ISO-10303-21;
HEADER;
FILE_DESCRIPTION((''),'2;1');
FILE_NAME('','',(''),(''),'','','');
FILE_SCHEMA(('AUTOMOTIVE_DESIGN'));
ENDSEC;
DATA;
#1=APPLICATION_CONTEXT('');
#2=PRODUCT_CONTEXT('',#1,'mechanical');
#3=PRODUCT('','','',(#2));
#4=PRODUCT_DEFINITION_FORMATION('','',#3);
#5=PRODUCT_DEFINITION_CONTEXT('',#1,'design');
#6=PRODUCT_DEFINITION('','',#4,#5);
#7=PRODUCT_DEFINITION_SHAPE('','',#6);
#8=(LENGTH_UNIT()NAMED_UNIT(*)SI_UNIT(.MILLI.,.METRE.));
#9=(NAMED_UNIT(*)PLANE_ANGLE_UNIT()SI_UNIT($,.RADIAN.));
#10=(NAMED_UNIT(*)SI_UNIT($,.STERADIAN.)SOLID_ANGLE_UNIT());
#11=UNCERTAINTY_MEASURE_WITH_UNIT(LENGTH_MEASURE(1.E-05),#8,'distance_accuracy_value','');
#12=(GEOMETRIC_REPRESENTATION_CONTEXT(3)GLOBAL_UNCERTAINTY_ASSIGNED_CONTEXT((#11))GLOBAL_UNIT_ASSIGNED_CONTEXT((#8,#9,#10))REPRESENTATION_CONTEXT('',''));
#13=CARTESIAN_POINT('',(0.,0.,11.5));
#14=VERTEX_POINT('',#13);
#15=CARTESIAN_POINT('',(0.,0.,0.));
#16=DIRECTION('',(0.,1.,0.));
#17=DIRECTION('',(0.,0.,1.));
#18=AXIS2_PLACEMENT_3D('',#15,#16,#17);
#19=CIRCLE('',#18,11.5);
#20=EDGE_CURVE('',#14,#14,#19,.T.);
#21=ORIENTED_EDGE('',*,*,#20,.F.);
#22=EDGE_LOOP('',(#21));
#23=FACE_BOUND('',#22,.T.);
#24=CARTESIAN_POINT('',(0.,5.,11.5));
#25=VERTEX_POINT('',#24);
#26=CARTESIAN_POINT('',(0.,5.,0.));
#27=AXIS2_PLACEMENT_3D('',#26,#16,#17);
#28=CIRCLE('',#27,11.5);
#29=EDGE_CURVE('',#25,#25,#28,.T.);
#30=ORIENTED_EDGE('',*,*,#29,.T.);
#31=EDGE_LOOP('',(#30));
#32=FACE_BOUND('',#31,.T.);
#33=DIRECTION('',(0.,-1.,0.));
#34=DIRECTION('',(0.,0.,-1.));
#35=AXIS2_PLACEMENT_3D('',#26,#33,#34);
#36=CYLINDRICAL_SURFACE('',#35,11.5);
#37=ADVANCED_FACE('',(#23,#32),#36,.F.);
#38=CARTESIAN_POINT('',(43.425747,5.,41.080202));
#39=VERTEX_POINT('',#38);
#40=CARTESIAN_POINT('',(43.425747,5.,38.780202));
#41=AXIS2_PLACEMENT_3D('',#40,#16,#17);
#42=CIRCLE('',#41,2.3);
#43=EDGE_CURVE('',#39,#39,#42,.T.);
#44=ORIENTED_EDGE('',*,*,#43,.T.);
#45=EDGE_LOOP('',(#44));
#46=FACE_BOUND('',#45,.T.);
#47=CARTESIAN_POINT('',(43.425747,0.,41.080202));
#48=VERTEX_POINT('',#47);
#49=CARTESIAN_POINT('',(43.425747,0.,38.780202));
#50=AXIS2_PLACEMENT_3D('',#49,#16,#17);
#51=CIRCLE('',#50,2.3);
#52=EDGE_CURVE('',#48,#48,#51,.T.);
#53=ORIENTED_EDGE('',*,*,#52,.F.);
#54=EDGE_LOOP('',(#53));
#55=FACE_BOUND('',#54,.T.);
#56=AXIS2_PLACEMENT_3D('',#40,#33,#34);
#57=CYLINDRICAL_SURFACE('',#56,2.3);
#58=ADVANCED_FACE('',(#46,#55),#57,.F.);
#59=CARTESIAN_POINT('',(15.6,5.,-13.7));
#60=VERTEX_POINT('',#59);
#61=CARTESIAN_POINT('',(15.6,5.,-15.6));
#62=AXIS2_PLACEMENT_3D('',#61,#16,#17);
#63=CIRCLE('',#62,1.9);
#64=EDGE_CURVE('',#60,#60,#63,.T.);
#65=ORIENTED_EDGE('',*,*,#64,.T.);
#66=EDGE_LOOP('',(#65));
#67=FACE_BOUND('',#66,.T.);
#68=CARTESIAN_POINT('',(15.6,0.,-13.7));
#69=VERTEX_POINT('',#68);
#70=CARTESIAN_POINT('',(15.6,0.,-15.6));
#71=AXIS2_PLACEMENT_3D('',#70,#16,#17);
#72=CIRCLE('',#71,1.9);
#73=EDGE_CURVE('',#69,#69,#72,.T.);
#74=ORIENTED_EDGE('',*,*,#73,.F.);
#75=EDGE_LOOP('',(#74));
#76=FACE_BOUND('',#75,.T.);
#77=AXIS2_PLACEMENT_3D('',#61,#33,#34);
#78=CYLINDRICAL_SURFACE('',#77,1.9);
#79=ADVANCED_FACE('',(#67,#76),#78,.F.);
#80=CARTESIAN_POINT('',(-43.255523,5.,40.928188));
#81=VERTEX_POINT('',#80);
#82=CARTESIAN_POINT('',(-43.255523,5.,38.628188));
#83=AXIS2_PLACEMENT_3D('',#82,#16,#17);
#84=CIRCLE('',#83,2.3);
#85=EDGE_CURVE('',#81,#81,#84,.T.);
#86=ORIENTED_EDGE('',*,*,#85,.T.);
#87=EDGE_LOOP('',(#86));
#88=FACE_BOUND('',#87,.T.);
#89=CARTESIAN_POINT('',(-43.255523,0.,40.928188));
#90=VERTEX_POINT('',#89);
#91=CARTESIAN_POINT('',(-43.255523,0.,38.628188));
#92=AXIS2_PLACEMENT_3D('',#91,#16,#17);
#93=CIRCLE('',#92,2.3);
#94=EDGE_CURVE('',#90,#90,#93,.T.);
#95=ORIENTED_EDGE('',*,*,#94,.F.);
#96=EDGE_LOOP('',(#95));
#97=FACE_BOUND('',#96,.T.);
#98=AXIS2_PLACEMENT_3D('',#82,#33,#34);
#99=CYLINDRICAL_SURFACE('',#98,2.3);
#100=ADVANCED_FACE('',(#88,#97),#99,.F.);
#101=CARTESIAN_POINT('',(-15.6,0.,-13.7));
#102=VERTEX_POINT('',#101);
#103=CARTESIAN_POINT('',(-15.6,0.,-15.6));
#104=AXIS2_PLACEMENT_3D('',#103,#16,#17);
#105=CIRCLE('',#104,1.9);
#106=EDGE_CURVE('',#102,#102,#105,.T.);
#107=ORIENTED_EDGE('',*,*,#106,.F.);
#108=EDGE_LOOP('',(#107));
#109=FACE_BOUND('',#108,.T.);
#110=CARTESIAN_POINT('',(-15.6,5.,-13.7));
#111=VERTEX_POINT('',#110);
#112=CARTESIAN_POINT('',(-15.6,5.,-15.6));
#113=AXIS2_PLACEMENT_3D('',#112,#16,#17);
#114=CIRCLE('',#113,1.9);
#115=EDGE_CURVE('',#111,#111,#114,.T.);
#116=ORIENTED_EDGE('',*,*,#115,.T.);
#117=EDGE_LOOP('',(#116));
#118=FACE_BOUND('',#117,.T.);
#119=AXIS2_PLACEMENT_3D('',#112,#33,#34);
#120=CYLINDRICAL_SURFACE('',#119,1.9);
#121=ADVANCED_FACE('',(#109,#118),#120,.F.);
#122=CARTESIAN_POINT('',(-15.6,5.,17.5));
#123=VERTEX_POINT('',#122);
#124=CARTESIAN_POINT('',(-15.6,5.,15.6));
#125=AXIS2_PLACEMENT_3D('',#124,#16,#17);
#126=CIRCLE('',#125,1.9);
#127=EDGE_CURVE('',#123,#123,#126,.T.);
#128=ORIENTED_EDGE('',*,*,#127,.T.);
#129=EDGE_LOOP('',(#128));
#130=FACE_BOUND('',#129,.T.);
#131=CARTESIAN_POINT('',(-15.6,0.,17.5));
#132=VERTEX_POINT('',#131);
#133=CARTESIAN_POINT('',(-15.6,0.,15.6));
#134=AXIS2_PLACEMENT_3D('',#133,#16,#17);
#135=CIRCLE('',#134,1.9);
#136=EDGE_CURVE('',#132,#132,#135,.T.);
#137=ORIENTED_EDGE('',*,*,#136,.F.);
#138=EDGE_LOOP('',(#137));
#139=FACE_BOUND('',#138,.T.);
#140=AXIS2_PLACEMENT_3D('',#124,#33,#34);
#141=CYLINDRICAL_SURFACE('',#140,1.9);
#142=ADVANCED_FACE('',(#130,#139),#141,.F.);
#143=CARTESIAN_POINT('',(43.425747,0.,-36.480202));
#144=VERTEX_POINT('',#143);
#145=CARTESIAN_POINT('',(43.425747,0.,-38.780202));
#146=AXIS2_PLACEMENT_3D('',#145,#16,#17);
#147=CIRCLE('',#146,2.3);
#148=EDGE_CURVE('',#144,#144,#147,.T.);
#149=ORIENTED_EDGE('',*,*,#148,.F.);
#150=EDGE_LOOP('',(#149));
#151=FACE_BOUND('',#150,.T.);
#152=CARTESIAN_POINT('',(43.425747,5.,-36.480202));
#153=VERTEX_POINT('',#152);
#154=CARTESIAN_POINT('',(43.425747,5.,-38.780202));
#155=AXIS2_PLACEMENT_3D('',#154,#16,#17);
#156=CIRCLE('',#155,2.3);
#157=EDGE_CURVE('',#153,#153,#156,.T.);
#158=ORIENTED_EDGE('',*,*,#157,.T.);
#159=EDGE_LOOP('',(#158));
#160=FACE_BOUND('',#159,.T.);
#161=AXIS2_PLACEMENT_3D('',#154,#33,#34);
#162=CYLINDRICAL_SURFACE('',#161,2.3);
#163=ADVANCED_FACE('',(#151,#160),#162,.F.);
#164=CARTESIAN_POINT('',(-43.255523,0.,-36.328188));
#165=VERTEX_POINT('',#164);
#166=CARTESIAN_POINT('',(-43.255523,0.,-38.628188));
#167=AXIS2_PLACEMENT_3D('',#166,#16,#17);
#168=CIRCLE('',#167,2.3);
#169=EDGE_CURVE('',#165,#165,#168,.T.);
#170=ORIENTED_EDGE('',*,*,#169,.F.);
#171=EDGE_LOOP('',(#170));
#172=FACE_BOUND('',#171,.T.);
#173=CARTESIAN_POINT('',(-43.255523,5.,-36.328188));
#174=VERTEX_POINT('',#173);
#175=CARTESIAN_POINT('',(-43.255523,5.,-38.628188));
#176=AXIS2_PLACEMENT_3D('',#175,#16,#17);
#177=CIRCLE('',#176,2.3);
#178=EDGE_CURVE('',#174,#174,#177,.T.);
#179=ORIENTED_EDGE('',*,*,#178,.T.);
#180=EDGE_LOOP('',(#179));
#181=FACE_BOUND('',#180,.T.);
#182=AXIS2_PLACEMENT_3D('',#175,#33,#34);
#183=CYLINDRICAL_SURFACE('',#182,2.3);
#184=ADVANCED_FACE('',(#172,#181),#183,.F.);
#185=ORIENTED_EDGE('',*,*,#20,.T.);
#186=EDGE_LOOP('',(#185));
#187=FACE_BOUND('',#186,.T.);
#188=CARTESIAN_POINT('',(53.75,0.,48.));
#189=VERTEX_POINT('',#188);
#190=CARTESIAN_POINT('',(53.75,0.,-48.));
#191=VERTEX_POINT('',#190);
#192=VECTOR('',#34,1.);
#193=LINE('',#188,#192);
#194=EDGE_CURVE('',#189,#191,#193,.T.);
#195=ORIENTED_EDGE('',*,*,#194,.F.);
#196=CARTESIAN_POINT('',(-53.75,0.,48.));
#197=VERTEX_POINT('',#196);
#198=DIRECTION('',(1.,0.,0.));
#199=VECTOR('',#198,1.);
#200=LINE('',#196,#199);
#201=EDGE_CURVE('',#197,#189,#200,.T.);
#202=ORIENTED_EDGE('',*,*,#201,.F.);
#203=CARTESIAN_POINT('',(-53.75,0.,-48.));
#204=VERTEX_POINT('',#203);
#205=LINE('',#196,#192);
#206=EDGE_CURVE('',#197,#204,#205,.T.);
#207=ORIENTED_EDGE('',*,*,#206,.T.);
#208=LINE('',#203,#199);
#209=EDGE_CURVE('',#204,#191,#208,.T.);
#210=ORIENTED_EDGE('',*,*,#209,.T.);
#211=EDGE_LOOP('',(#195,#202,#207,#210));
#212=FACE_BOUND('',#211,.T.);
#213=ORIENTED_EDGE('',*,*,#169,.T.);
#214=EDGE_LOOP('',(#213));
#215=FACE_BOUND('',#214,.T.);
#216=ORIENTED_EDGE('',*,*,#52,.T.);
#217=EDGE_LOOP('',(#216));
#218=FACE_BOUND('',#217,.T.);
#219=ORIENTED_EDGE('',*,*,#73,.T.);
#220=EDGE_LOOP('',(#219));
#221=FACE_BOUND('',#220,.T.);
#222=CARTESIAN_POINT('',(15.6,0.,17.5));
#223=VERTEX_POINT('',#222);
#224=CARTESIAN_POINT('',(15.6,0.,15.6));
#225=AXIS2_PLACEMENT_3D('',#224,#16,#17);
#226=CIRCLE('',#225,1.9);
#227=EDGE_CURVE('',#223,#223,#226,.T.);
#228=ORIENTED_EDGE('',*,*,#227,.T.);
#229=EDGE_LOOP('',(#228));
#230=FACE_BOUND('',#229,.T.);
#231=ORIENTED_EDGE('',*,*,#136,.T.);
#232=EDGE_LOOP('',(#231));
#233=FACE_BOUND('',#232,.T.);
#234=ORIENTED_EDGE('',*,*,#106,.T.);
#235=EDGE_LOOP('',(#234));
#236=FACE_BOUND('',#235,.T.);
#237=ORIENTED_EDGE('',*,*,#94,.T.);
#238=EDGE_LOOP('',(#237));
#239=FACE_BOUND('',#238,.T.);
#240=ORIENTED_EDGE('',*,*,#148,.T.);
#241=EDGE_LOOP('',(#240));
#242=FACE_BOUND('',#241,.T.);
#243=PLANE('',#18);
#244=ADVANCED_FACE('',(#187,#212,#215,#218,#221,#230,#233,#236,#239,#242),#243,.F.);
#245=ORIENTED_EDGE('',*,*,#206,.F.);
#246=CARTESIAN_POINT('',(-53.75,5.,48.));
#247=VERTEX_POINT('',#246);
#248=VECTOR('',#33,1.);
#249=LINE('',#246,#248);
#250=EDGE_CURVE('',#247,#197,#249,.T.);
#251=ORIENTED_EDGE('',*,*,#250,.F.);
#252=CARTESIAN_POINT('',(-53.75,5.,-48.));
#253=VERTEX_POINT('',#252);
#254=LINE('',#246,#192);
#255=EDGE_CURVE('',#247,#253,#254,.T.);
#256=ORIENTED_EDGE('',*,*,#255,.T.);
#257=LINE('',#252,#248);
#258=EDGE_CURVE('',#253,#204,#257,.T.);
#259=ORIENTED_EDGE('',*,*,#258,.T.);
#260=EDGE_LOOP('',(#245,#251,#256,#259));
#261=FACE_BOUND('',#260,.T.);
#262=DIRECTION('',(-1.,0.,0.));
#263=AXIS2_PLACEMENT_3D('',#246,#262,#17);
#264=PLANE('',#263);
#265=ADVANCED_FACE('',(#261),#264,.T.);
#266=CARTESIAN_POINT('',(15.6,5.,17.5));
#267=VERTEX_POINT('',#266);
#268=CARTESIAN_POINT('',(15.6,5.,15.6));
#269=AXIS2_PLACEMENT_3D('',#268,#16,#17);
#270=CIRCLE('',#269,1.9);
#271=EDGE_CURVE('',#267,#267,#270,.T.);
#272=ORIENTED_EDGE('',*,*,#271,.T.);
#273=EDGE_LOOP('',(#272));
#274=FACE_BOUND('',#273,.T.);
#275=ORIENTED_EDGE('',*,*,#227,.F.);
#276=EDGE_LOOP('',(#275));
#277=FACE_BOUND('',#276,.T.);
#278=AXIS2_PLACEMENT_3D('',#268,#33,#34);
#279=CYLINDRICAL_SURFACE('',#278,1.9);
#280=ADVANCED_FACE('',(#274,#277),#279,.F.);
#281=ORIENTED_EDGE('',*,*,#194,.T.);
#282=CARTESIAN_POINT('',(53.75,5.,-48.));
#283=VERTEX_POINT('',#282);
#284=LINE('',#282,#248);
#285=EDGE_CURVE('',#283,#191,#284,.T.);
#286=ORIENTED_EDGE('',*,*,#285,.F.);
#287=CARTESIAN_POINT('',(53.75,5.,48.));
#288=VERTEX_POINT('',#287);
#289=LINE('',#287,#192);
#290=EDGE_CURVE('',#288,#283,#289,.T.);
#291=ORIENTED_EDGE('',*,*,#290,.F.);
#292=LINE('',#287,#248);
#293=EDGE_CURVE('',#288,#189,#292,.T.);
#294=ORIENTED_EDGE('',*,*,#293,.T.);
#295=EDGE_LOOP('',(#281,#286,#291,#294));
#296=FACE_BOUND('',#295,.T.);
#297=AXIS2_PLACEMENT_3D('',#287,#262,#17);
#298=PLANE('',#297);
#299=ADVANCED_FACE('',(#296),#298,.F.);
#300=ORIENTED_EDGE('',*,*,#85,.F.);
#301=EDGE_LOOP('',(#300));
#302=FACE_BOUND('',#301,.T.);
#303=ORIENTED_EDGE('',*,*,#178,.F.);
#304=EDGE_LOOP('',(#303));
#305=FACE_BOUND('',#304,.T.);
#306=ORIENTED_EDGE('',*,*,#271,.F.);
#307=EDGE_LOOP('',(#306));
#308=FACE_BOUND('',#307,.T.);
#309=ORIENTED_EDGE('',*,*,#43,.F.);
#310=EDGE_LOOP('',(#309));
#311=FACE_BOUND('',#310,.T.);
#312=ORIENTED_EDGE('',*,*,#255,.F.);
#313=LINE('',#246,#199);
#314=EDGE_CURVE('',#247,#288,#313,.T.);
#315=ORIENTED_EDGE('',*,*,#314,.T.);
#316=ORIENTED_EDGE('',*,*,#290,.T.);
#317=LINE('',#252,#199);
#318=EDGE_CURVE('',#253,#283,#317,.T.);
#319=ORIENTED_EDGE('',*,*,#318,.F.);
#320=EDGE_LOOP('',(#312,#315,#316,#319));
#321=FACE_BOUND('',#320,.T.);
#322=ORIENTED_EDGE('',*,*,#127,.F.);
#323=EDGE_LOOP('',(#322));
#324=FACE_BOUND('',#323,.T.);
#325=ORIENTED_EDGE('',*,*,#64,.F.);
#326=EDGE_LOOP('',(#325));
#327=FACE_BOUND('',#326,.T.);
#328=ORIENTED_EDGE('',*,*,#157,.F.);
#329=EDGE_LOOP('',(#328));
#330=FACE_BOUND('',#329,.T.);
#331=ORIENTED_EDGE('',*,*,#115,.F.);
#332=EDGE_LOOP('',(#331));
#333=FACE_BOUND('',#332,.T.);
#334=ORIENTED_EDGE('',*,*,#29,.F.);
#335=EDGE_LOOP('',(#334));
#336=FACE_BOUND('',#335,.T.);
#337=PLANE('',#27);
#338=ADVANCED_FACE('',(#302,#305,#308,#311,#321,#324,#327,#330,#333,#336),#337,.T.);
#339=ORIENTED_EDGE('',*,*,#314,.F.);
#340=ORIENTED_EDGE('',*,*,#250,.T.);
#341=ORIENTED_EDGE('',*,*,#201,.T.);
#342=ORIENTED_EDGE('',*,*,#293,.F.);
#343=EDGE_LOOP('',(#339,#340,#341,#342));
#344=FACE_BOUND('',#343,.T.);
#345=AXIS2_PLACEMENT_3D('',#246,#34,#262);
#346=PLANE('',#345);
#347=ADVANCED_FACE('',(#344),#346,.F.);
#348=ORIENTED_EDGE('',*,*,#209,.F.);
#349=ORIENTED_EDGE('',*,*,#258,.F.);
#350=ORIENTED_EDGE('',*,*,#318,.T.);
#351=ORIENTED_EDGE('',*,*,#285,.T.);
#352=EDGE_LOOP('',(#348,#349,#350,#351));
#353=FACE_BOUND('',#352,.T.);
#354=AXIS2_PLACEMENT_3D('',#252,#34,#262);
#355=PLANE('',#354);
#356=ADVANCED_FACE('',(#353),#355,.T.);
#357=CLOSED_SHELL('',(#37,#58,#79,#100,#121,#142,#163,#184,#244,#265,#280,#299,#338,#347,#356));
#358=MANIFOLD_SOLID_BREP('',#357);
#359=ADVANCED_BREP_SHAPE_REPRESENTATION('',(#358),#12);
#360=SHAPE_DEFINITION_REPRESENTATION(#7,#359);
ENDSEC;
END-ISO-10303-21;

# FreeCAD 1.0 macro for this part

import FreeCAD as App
import Part
import Sketcher

V = App.Vector


def add_polygon(sketch, points):
    """Adds a closed chain of lines whose ends are joined by coincident constraints."""
    first, n = sketch.GeometryCount, len(points)
    for a, b in zip(points, points[1:] + points[:1]):
        sketch.addGeometry(Part.LineSegment(App.Vector(*a, 0), App.Vector(*b, 0)), False)
    for i in range(n):
        sketch.addConstraint(Sketcher.Constraint("Coincident", first + i, 2, first + (i + 1) % n, 1))

doc = App.newDocument("Part")
body = doc.addObject("PartDesign::Body", "Body")

# Sketch on XZ plane
sketch1 = body.newObject("Sketcher::SketchObject", "Sketch")
sketch1.AttachmentSupport = (doc.getObject("XZ_Plane"), [""])
sketch1.MapMode = "FlatFace"
add_polygon(sketch1, [(-53.75, -48), (-53.75, 48), (53.75, 48), (53.75, -48)])  # lines 0-3
sketch1.addConstraint(Sketcher.Constraint("Vertical", 0))
sketch1.addConstraint(Sketcher.Constraint("Horizontal", 1))
sketch1.addConstraint(Sketcher.Constraint("Vertical", 2))
sketch1.addConstraint(Sketcher.Constraint("Horizontal", 3))
sketch1.addConstraint(Sketcher.Constraint("Symmetric", 0, 2, 2, 2, -1, 1))
sketch1.addConstraint(Sketcher.Constraint("DistanceY", 0, 1, 0, 2, 96.0))
sketch1.addConstraint(Sketcher.Constraint("DistanceX", 1, 1, 1, 2, 107.5))
pad1 = body.newObject("PartDesign::Pad", "Pad")
pad1.Profile = sketch1
pad1.Length = 5
pad1.Reversed = True

# Sketch on XZ plane
sketch2 = body.newObject("Sketcher::SketchObject", "Sketch001")
sketch2.AttachmentSupport = (doc.getObject("XZ_Plane"), [""])
sketch2.MapMode = "FlatFace"
sketch2.addGeometry(Part.Circle(V(-15.6, -15.6, 0), V(0, 0, 1), 1.9), False)
sketch2.addGeometry(Part.Circle(V(15.6, -15.6, 0), V(0, 0, 1), 1.9), False)
sketch2.addGeometry(Part.Circle(V(15.6, 15.6, 0), V(0, 0, 1), 1.9), False)
sketch2.addGeometry(Part.Circle(V(-15.6, 15.6, 0), V(0, 0, 1), 1.9), False)
sketch2.addGeometry(Part.Circle(V(0, 0, 0), V(0, 0, 1), 11.5), False)
sketch2.addGeometry(Part.Circle(V(-43.255523, 38.628188, 0), V(0, 0, 1), 2.3), False)
sketch2.addGeometry(Part.Circle(V(43.425747, -38.780202, 0), V(0, 0, 1), 2.3), False)
sketch2.addGeometry(Part.Circle(V(-43.255523, -38.628188, 0), V(0, 0, 1), 2.3), False)
sketch2.addGeometry(Part.Circle(V(43.425747, 38.780202, 0), V(0, 0, 1), 2.3), False)
sketch2.addConstraint(Sketcher.Constraint("Coincident", 4, 3, -1, 1))
sketch2.addConstraint(Sketcher.Constraint("Equal", 0, 1))
sketch2.addConstraint(Sketcher.Constraint("Equal", 1, 2))
sketch2.addConstraint(Sketcher.Constraint("Equal", 2, 3))
sketch2.addConstraint(Sketcher.Constraint("Equal", 5, 6))
sketch2.addConstraint(Sketcher.Constraint("Equal", 6, 7))
sketch2.addConstraint(Sketcher.Constraint("Equal", 7, 8))
sketch2.addConstraint(Sketcher.Constraint("Symmetric", 0, 3, 2, 3, -1, 1))
sketch2.addConstraint(Sketcher.Constraint("Symmetric", 1, 3, 3, 3, -1, 1))
sketch2.addConstraint(Sketcher.Constraint("Symmetric", 0, 3, 1, 3, -2))
sketch2.addConstraint(Sketcher.Constraint("Symmetric", 5, 3, 7, 3, -1))
sketch2.addConstraint(Sketcher.Constraint("Symmetric", 6, 3, 8, 3, -1))
sketch2.addConstraint(Sketcher.Constraint("Diameter", 4, 23.0))
sketch2.addConstraint(Sketcher.Constraint("Diameter", 0, 3.8))
sketch2.addConstraint(Sketcher.Constraint("Diameter", 5, 4.6))
sketch2.addConstraint(Sketcher.Constraint("DistanceX", 0, 3, -1, 1, 15.6))
sketch2.addConstraint(Sketcher.Constraint("DistanceY", 0, 3, -1, 1, 15.6))
sketch2.addConstraint(Sketcher.Constraint("DistanceY", 6, 3, -1, 1, 38.780202))
sketch2.addConstraint(Sketcher.Constraint("DistanceY", -1, 1, 5, 3, 38.628188))
sketch2.addConstraint(Sketcher.Constraint("DistanceX", 5, 3, -1, 1, 43.255523))
sketch2.addConstraint(Sketcher.Constraint("DistanceX", -1, 1, 6, 3, 43.425747))
pocket1 = body.newObject("PartDesign::Pocket", "Pocket")
pocket1.Profile = sketch2
pocket1.Length = 5

doc.recompute()
